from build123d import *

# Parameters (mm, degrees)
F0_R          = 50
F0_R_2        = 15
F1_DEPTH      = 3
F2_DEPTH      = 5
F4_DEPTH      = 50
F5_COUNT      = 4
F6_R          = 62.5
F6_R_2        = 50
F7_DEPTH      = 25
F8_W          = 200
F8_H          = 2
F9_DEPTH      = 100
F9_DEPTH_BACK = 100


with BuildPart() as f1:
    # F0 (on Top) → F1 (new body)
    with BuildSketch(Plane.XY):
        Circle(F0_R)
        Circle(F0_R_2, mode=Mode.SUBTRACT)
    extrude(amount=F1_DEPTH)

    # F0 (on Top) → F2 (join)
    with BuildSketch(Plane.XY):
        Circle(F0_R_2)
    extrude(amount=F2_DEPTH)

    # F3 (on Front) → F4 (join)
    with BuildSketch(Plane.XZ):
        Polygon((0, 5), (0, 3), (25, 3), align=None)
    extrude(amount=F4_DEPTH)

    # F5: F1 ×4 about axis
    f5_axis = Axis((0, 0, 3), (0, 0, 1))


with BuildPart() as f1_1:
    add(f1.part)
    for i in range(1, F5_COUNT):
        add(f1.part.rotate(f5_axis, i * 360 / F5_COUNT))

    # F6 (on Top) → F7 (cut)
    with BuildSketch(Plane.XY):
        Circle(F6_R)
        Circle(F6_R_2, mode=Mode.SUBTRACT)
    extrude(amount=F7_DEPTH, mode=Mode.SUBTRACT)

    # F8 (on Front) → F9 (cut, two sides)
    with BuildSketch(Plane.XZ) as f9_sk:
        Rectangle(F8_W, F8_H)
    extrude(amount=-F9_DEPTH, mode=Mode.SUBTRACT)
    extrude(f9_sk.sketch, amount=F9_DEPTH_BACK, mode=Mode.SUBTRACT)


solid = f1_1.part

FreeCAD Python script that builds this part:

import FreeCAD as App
import Part
import Sketcher
Q = App.Units.Quantity


def add_polygon(sketch, points):
    """Adds a closed chain of lines whose ends are joined by coincident constraints."""
    first, n = sketch.GeometryCount, len(points)
    for a, b in zip(points, points[1:] + points[:1]):
        sketch.addGeometry(Part.LineSegment(App.Vector(*a, 0), App.Vector(*b, 0)), False)
    for i in range(n):
        sketch.addConstraint(Sketcher.Constraint("Coincident", first + i, 2, first + (i + 1) % n, 1))

doc = App.newDocument("Part")
body = doc.addObject("PartDesign::Body", "Body")

# Sketch on XY plane
sketch1 = body.newObject("Sketcher::SketchObject", "Sketch")
sketch1.AttachmentSupport = (doc.getObject("XY_Plane"), [""])
sketch1.MapMode = "FlatFace"
sketch1.addGeometry([
    Part.Circle(App.Vector(0, 0, 0), App.Vector(0, 0, 1), 50),
    Part.Circle(App.Vector(0, 0, 0), App.Vector(0, 0, 1), 15),
], False)
sketch1.addConstraint([
    Sketcher.Constraint("Coincident", 0, 3, -1, 1),
    Sketcher.Constraint("Coincident", 1, 3, -1, 1),
    Sketcher.Constraint("Diameter", 0, Q("100 mm")),
    Sketcher.Constraint("Diameter", 1, Q("30 mm")),
])
pad1 = body.newObject("PartDesign::Pad", "Pad")
pad1.Profile = sketch1
pad1.Length = 3

# Sketch on XY plane
sketch2 = body.newObject("Sketcher::SketchObject", "Sketch001")
sketch2.AttachmentSupport = (doc.getObject("XY_Plane"), [""])
sketch2.MapMode = "FlatFace"
sketch2.addGeometry(Part.Circle(App.Vector(0, 0, 0), App.Vector(0, 0, 1), 15), False)
sketch2.addConstraint([
    Sketcher.Constraint("Coincident", 0, 3, -1, 1),
    Sketcher.Constraint("Diameter", 0, Q("30 mm")),
])
pad2 = body.newObject("PartDesign::Pad", "Pad001")
pad2.Profile = sketch2
pad2.Length = 5

# Sketch on XZ plane
sketch3 = body.newObject("Sketcher::SketchObject", "Sketch002")
sketch3.AttachmentSupport = (doc.getObject("XZ_Plane"), [""])
sketch3.MapMode = "FlatFace"
add_polygon(sketch3, [(0, 5), (0, 3), (25, 3)])  # lines 0-2
sketch3.addConstraint([
    Sketcher.Constraint("Vertical", 0),
    Sketcher.Constraint("Horizontal", 1),
    Sketcher.Constraint("PointOnObject", 0, 2, -2),
    Sketcher.Constraint("DistanceX", 1, 1, 1, 2, Q("25 mm")),
    Sketcher.Constraint("DistanceY", 0, 2, 0, 1, Q("2 mm")),
    Sketcher.Constraint("DistanceY", -1, 1, 0, 2, Q("3 mm")),
])
pad3 = body.newObject("PartDesign::Pad", "Pad002")
pad3.Profile = sketch3
pad3.Length = 50
body2 = doc.addObject("PartDesign::Body", "Body001")
doc.recompute()

body2.BaseFeature = body
doc.recompute()

body3 = doc.addObject("PartDesign::Body", "Body002")
body3.BaseFeature = body
body3.Placement = App.Placement(App.Vector(0, 0, 0), App.Rotation(App.Vector(0, 0, 1), 90))
boolean = body2.newObject("PartDesign::Boolean", "Boolean")
boolean.Type = "Fuse"
boolean.addObjects([body3])
doc.recompute()

body4 = doc.addObject("PartDesign::Body", "Body003")
body4.BaseFeature = body
body4.Placement = App.Placement(App.Vector(0, 0, 0), App.Rotation(App.Vector(0, 0, 1), 180))
boolean2 = body2.newObject("PartDesign::Boolean", "Boolean001")
boolean2.Type = "Fuse"
boolean2.addObjects([body4])
doc.recompute()

body.Placement = App.Placement(App.Vector(0, 0, 0), App.Rotation(App.Vector(0, 0, 1), 270))
boolean3 = body2.newObject("PartDesign::Boolean", "Boolean002")
boolean3.Type = "Fuse"
boolean3.addObjects([body])

# Sketch on XY plane
sketch4 = body2.newObject("Sketcher::SketchObject", "Sketch003")
sketch4.AttachmentSupport = (doc.getObject("XY_Plane001"), [""])
sketch4.MapMode = "FlatFace"
sketch4.addGeometry([
    Part.Circle(App.Vector(0, 0, 0), App.Vector(0, 0, 1), 62),
    Part.Circle(App.Vector(0, 0, 0), App.Vector(0, 0, 1), 50),
], False)
sketch4.addConstraint([
    Sketcher.Constraint("Coincident", 0, 3, -1, 1),
    Sketcher.Constraint("Coincident", 1, 3, -1, 1),
    Sketcher.Constraint("Diameter", 0, Q("125 mm")),
    Sketcher.Constraint("Diameter", 1, Q("100 mm")),
])
pocket1 = body2.newObject("PartDesign::Pocket", "Pocket")
pocket1.Profile = sketch4
pocket1.Length = 25
pocket1.Reversed = True

# Sketch on XZ plane
sketch5 = body2.newObject("Sketcher::SketchObject", "Sketch004")
sketch5.AttachmentSupport = (doc.getObject("XZ_Plane001"), [""])
sketch5.MapMode = "FlatFace"
add_polygon(sketch5, [(-100, 1), (-100, -1), (100, -1), (100, 1)])  # lines 0-3
sketch5.addConstraint([
    Sketcher.Constraint("Vertical", 0),
    Sketcher.Constraint("Horizontal", 1),
    Sketcher.Constraint("Vertical", 2),
    Sketcher.Constraint("Horizontal", 3),
    Sketcher.Constraint("Symmetric", 0, 2, 2, 2, -1, 1),
    Sketcher.Constraint("DistanceX", 1, 1, 1, 2, Q("200 mm")),
    Sketcher.Constraint("DistanceY", 0, 2, 0, 1, Q("2 mm")),
])
pocket2 = body2.newObject("PartDesign::Pocket", "Pocket001")
pocket2.Profile = sketch5
pocket2.Type = "ThroughAll"
pocket2.Midplane = True

doc.recompute()
